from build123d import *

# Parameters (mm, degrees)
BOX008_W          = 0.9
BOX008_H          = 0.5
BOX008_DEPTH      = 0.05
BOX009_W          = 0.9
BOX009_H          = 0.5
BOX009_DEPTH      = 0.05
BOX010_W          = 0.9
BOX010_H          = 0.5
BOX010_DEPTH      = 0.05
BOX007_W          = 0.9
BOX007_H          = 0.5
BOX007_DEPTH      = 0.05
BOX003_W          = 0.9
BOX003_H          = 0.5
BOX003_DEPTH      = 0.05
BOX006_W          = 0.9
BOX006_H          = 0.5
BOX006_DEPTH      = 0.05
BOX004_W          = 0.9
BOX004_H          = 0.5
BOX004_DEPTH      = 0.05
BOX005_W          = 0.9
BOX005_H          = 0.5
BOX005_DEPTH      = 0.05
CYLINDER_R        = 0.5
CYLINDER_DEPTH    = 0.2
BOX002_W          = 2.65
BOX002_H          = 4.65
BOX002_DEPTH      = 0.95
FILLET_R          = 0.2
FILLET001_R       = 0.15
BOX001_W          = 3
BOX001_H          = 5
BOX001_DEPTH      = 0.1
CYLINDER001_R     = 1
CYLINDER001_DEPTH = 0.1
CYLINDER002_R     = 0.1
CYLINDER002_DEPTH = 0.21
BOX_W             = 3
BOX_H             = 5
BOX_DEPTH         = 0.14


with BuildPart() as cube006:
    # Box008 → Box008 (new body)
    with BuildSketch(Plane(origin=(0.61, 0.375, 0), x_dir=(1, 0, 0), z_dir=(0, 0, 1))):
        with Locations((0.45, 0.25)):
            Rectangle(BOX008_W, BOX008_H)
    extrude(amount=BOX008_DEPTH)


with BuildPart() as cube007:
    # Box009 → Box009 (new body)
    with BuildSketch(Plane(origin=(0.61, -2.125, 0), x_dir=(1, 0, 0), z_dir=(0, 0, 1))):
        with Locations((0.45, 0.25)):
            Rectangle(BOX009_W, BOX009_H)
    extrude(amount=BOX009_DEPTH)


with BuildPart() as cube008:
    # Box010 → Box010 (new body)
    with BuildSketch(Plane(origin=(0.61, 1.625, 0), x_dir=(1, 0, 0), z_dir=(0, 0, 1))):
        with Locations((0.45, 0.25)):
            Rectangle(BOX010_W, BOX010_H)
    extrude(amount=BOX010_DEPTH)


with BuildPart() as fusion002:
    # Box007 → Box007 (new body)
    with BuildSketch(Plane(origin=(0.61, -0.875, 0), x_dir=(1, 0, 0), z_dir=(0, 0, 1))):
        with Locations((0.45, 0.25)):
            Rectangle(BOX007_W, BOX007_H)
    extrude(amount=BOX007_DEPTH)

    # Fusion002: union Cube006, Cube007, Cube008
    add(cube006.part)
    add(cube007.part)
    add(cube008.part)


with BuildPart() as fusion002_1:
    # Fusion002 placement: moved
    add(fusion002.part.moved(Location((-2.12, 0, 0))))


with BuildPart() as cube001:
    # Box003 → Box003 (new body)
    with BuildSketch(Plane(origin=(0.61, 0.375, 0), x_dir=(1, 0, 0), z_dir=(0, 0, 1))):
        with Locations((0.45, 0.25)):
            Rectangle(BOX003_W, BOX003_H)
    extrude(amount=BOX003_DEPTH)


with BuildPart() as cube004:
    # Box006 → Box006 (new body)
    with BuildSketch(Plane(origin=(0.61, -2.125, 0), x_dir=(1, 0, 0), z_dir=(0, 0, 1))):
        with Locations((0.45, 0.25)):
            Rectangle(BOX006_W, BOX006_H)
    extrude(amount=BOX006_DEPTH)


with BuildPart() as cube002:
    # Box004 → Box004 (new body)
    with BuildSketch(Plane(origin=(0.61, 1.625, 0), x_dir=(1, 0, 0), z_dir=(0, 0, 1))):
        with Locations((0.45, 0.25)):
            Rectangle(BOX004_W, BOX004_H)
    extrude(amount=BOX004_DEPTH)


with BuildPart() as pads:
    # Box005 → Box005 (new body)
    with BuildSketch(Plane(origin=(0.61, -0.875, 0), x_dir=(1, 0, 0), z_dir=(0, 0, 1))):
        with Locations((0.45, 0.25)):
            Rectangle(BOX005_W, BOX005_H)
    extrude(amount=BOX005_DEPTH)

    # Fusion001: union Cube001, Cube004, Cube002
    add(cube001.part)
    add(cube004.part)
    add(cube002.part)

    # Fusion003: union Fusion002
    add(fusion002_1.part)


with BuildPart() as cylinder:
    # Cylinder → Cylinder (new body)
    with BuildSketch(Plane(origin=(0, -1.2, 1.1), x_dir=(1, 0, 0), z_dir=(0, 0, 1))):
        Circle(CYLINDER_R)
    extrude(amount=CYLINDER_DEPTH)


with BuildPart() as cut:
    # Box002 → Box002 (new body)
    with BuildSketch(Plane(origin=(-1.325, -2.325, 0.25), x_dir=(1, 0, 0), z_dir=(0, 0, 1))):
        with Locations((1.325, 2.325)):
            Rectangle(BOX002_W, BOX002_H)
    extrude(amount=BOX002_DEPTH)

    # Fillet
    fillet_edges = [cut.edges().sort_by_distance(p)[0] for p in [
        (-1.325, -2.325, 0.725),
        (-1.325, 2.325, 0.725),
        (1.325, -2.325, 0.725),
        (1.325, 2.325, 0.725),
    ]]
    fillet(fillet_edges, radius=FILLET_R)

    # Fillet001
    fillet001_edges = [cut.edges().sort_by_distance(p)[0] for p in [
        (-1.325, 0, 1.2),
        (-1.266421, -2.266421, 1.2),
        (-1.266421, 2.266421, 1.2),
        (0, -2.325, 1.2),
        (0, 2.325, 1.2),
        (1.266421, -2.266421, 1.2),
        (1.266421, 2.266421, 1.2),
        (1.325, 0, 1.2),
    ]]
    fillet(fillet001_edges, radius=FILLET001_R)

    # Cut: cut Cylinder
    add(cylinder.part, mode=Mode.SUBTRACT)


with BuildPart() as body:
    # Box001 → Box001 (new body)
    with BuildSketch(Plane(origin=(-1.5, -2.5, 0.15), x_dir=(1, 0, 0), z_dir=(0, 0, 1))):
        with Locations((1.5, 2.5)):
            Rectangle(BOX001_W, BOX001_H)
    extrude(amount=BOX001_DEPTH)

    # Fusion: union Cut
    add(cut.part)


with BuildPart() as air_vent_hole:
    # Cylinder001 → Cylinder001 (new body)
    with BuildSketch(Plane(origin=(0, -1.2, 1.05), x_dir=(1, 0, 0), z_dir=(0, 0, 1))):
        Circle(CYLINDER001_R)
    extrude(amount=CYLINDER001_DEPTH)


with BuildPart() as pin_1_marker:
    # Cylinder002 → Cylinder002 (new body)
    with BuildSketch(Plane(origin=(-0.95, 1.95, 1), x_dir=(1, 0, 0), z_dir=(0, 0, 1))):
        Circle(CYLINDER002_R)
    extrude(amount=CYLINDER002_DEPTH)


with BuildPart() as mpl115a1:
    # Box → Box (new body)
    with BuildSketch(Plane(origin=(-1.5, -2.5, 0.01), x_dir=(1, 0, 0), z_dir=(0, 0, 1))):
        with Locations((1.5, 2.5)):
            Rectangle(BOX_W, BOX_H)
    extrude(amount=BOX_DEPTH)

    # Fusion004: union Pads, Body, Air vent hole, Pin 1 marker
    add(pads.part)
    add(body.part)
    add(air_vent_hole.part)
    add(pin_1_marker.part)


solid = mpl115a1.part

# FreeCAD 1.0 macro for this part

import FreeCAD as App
import Part
import Sketcher


def edges_at(feature, points):
    """Names of the edges that pass closest to the given points."""
    edges = feature.Shape.Edges
    near = lambda p: min(range(len(edges)), key=lambda i: edges[i].distToShape(Part.Vertex(*p))[0])
    return sorted({f"Edge{near(p) + 1}" for p in points})

doc = App.newDocument("Part")
params = doc.addObject("Spreadsheet::Sheet", "Params")
for row, (alias, value) in enumerate([
    ("sketch1_width", "0.9 mm"),
    ("sketch1_height", "0.5 mm"),
    ("pad1_length", "0.05 mm"),
    ("sketch2_width", "0.9 mm"),
    ("sketch2_height", "0.5 mm"),
    ("pad2_length", "0.05 mm"),
    ("sketch3_width", "0.9 mm"),
    ("sketch3_height", "0.5 mm"),
    ("pad3_length", "0.05 mm"),
    ("sketch4_width", "0.9 mm"),
    ("sketch4_height", "0.5 mm"),
    ("pad4_length", "0.05 mm"),
    ("sketch5_width", "0.9 mm"),
    ("sketch5_height", "0.5 mm"),
    ("pad5_length", "0.05 mm"),
    ("sketch6_width", "0.9 mm"),
    ("sketch6_height", "0.5 mm"),
    ("pad6_length", "0.05 mm"),
    ("sketch7_width", "0.9 mm"),
    ("sketch7_height", "0.5 mm"),
    ("pad7_length", "0.05 mm"),
    ("sketch8_width", "0.9 mm"),
    ("sketch8_height", "0.5 mm"),
    ("pad8_length", "0.05 mm"),
    ("sketch9_diameter", "1 mm"),
    ("pad9_length", "0.2 mm"),
    ("sketch10_width", "2.65 mm"),
    ("sketch10_height", "4.65 mm"),
    ("pad10_length", "0.95 mm"),
    ("fillet_radius", "0.2 mm"),
    ("fillet2_radius", "0.15 mm"),
    ("sketch11_width", "3 mm"),
    ("sketch11_height", "5 mm"),
    ("pad11_length", "0.1 mm"),
    ("sketch12_diameter", "2 mm"),
    ("pad12_length", "0.1 mm"),
    ("sketch13_diameter", "0.2 mm"),
    ("pad13_length", "0.21 mm"),
    ("sketch14_width", "3 mm"),
    ("sketch14_height", "5 mm"),
    ("pad14_length", "0.14 mm"),
], start=1):
    params.set(f"A{row}", alias)
    params.set(f"B{row}", "=" + value)
    params.setAlias(f"B{row}", alias)

body = doc.addObject("PartDesign::Body", "Body")

# Sketch on XY plane
sketch1 = body.newObject("Sketcher::SketchObject", "Sketch")
sketch1.AttachmentSupport = (doc.getObject("XY_Plane"), [""])
sketch1.MapMode = "FlatFace"
sketch1.addGeometry(Part.LineSegment(App.Vector(0.6, 0.9, 0), App.Vector(0.6, 0.4, 0)), False)
sketch1.addGeometry(Part.LineSegment(App.Vector(0.6, 0.4, 0), App.Vector(1.5, 0.4, 0)), False)
sketch1.addGeometry(Part.LineSegment(App.Vector(1.5, 0.4, 0), App.Vector(1.5, 0.9, 0)), False)
sketch1.addGeometry(Part.LineSegment(App.Vector(1.5, 0.9, 0), App.Vector(0.6, 0.9, 0)), False)
sketch1.addConstraint(Sketcher.Constraint("Coincident", 0, 2, 1, 1))
sketch1.addConstraint(Sketcher.Constraint("Coincident", 1, 2, 2, 1))
sketch1.addConstraint(Sketcher.Constraint("Coincident", 2, 2, 3, 1))
sketch1.addConstraint(Sketcher.Constraint("Coincident", 3, 2, 0, 1))
sketch1.addConstraint(Sketcher.Constraint("Vertical", 0))
sketch1.addConstraint(Sketcher.Constraint("Horizontal", 1))
sketch1.addConstraint(Sketcher.Constraint("Vertical", 2))
sketch1.addConstraint(Sketcher.Constraint("Horizontal", 3))
sketch1.addConstraint(Sketcher.Constraint("DistanceX", 1, 1, 1, 2, 0.9))
sketch1.addConstraint(Sketcher.Constraint("DistanceY", 0, 2, 0, 1, 0.5))
sketch1.addConstraint(Sketcher.Constraint("DistanceX", -1, 1, 0, 2, 0.61))
sketch1.addConstraint(Sketcher.Constraint("DistanceY", -1, 1, 0, 2, 0.375))
sketch1.setExpression("Constraints[8]", "Params.sketch1_width")
sketch1.setExpression("Constraints[9]", "Params.sketch1_height")
pad1 = body.newObject("PartDesign::Pad", "Pad")
pad1.Profile = sketch1
pad1.setExpression("Length", "Params.pad1_length")
body2 = doc.addObject("PartDesign::Body", "Body001")

# Sketch on XY plane
sketch2 = body2.newObject("Sketcher::SketchObject", "Sketch001")
sketch2.AttachmentSupport = (doc.getObject("XY_Plane001"), [""])
sketch2.MapMode = "FlatFace"
sketch2.addGeometry(Part.LineSegment(App.Vector(0.6, -1.6, 0), App.Vector(0.6, -2.1, 0)), False)
sketch2.addGeometry(Part.LineSegment(App.Vector(0.6, -2.1, 0), App.Vector(1.5, -2.1, 0)), False)
sketch2.addGeometry(Part.LineSegment(App.Vector(1.5, -2.1, 0), App.Vector(1.5, -1.6, 0)), False)
sketch2.addGeometry(Part.LineSegment(App.Vector(1.5, -1.6, 0), App.Vector(0.6, -1.6, 0)), False)
sketch2.addConstraint(Sketcher.Constraint("Coincident", 0, 2, 1, 1))
sketch2.addConstraint(Sketcher.Constraint("Coincident", 1, 2, 2, 1))
sketch2.addConstraint(Sketcher.Constraint("Coincident", 2, 2, 3, 1))
sketch2.addConstraint(Sketcher.Constraint("Coincident", 3, 2, 0, 1))
sketch2.addConstraint(Sketcher.Constraint("Vertical", 0))
sketch2.addConstraint(Sketcher.Constraint("Horizontal", 1))
sketch2.addConstraint(Sketcher.Constraint("Vertical", 2))
sketch2.addConstraint(Sketcher.Constraint("Horizontal", 3))
sketch2.addConstraint(Sketcher.Constraint("DistanceX", 1, 1, 1, 2, 0.9))
sketch2.addConstraint(Sketcher.Constraint("DistanceY", 0, 2, 0, 1, 0.5))
sketch2.addConstraint(Sketcher.Constraint("DistanceX", -1, 1, 0, 2, 0.61))
sketch2.addConstraint(Sketcher.Constraint("DistanceY", 0, 2, -1, 1, 2.125))
sketch2.setExpression("Constraints[8]", "Params.sketch2_width")
sketch2.setExpression("Constraints[9]", "Params.sketch2_height")
pad2 = body2.newObject("PartDesign::Pad", "Pad001")
pad2.Profile = sketch2
pad2.setExpression("Length", "Params.pad2_length")
body3 = doc.addObject("PartDesign::Body", "Body002")

# Sketch on XY plane
sketch3 = body3.newObject("Sketcher::SketchObject", "Sketch002")
sketch3.AttachmentSupport = (doc.getObject("XY_Plane002"), [""])
sketch3.MapMode = "FlatFace"
sketch3.addGeometry(Part.LineSegment(App.Vector(0.6, 2.1, 0), App.Vector(0.6, 1.6, 0)), False)
sketch3.addGeometry(Part.LineSegment(App.Vector(0.6, 1.6, 0), App.Vector(1.5, 1.6, 0)), False)
sketch3.addGeometry(Part.LineSegment(App.Vector(1.5, 1.6, 0), App.Vector(1.5, 2.1, 0)), False)
sketch3.addGeometry(Part.LineSegment(App.Vector(1.5, 2.1, 0), App.Vector(0.6, 2.1, 0)), False)
sketch3.addConstraint(Sketcher.Constraint("Coincident", 0, 2, 1, 1))
sketch3.addConstraint(Sketcher.Constraint("Coincident", 1, 2, 2, 1))
sketch3.addConstraint(Sketcher.Constraint("Coincident", 2, 2, 3, 1))
sketch3.addConstraint(Sketcher.Constraint("Coincident", 3, 2, 0, 1))
sketch3.addConstraint(Sketcher.Constraint("Vertical", 0))
sketch3.addConstraint(Sketcher.Constraint("Horizontal", 1))
sketch3.addConstraint(Sketcher.Constraint("Vertical", 2))
sketch3.addConstraint(Sketcher.Constraint("Horizontal", 3))
sketch3.addConstraint(Sketcher.Constraint("DistanceX", 1, 1, 1, 2, 0.9))
sketch3.addConstraint(Sketcher.Constraint("DistanceY", 0, 2, 0, 1, 0.5))
sketch3.addConstraint(Sketcher.Constraint("DistanceX", -1, 1, 0, 2, 0.61))
sketch3.addConstraint(Sketcher.Constraint("DistanceY", -1, 1, 0, 2, 1.625))
sketch3.setExpression("Constraints[8]", "Params.sketch3_width")
sketch3.setExpression("Constraints[9]", "Params.sketch3_height")
pad3 = body3.newObject("PartDesign::Pad", "Pad002")
pad3.Profile = sketch3
pad3.setExpression("Length", "Params.pad3_length")
body4 = doc.addObject("PartDesign::Body", "Body003")
body4.AllowCompound = True

# Sketch on XY plane
sketch4 = body4.newObject("Sketcher::SketchObject", "Sketch003")
sketch4.AttachmentSupport = (doc.getObject("XY_Plane003"), [""])
sketch4.MapMode = "FlatFace"
sketch4.addGeometry(Part.LineSegment(App.Vector(0.6, -0.4, 0), App.Vector(0.6, -0.9, 0)), False)
sketch4.addGeometry(Part.LineSegment(App.Vector(0.6, -0.9, 0), App.Vector(1.5, -0.9, 0)), False)
sketch4.addGeometry(Part.LineSegment(App.Vector(1.5, -0.9, 0), App.Vector(1.5, -0.4, 0)), False)
sketch4.addGeometry(Part.LineSegment(App.Vector(1.5, -0.4, 0), App.Vector(0.6, -0.4, 0)), False)
sketch4.addConstraint(Sketcher.Constraint("Coincident", 0, 2, 1, 1))
sketch4.addConstraint(Sketcher.Constraint("Coincident", 1, 2, 2, 1))
sketch4.addConstraint(Sketcher.Constraint("Coincident", 2, 2, 3, 1))
sketch4.addConstraint(Sketcher.Constraint("Coincident", 3, 2, 0, 1))
sketch4.addConstraint(Sketcher.Constraint("Vertical", 0))
sketch4.addConstraint(Sketcher.Constraint("Horizontal", 1))
sketch4.addConstraint(Sketcher.Constraint("Vertical", 2))
sketch4.addConstraint(Sketcher.Constraint("Horizontal", 3))
sketch4.addConstraint(Sketcher.Constraint("DistanceX", 1, 1, 1, 2, 0.9))
sketch4.addConstraint(Sketcher.Constraint("DistanceY", 0, 2, 0, 1, 0.5))
sketch4.addConstraint(Sketcher.Constraint("DistanceX", -1, 1, 0, 2, 0.61))
sketch4.addConstraint(Sketcher.Constraint("DistanceY", 0, 2, -1, 1, 0.875))
sketch4.setExpression("Constraints[8]", "Params.sketch4_width")
sketch4.setExpression("Constraints[9]", "Params.sketch4_height")
pad4 = body4.newObject("PartDesign::Pad", "Pad003")
pad4.Profile = sketch4
pad4.setExpression("Length", "Params.pad4_length")
doc.recompute()

boolean = body4.newObject("PartDesign::Boolean", "Boolean")
boolean.Type = "Fuse"
boolean.addObjects([body])
doc.recompute()

boolean2 = body4.newObject("PartDesign::Boolean", "Boolean001")
boolean2.Type = "Fuse"
boolean2.addObjects([body2])
doc.recompute()

boolean3 = body4.newObject("PartDesign::Boolean", "Boolean002")
boolean3.Type = "Fuse"
boolean3.addObjects([body3])
body5 = doc.addObject("PartDesign::Body", "Body004")
body5.AllowCompound = True
doc.recompute()

body4.Placement = App.Placement(App.Vector(-2.12, 0, 0), App.Rotation(App.Vector(0, 0, 1), 0))
boolean4 = body5.newObject("PartDesign::Boolean", "Boolean003")
boolean4.Type = "Fuse"
boolean4.addObjects([body4])
body6 = doc.addObject("PartDesign::Body", "Body005")

# Sketch on XY plane
sketch5 = body6.newObject("Sketcher::SketchObject", "Sketch004")
sketch5.AttachmentSupport = (doc.getObject("XY_Plane005"), [""])
sketch5.MapMode = "FlatFace"
sketch5.addGeometry(Part.LineSegment(App.Vector(0.6, 0.9, 0), App.Vector(0.6, 0.4, 0)), False)
sketch5.addGeometry(Part.LineSegment(App.Vector(0.6, 0.4, 0), App.Vector(1.5, 0.4, 0)), False)
sketch5.addGeometry(Part.LineSegment(App.Vector(1.5, 0.4, 0), App.Vector(1.5, 0.9, 0)), False)
sketch5.addGeometry(Part.LineSegment(App.Vector(1.5, 0.9, 0), App.Vector(0.6, 0.9, 0)), False)
sketch5.addConstraint(Sketcher.Constraint("Coincident", 0, 2, 1, 1))
sketch5.addConstraint(Sketcher.Constraint("Coincident", 1, 2, 2, 1))
sketch5.addConstraint(Sketcher.Constraint("Coincident", 2, 2, 3, 1))
sketch5.addConstraint(Sketcher.Constraint("Coincident", 3, 2, 0, 1))
sketch5.addConstraint(Sketcher.Constraint("Vertical", 0))
sketch5.addConstraint(Sketcher.Constraint("Horizontal", 1))
sketch5.addConstraint(Sketcher.Constraint("Vertical", 2))
sketch5.addConstraint(Sketcher.Constraint("Horizontal", 3))
sketch5.addConstraint(Sketcher.Constraint("DistanceX", 1, 1, 1, 2, 0.9))
sketch5.addConstraint(Sketcher.Constraint("DistanceY", 0, 2, 0, 1, 0.5))
sketch5.addConstraint(Sketcher.Constraint("DistanceX", -1, 1, 0, 2, 0.61))
sketch5.addConstraint(Sketcher.Constraint("DistanceY", -1, 1, 0, 2, 0.375))
sketch5.setExpression("Constraints[8]", "Params.sketch5_width")
sketch5.setExpression("Constraints[9]", "Params.sketch5_height")
pad5 = body6.newObject("PartDesign::Pad", "Pad004")
pad5.Profile = sketch5
pad5.setExpression("Length", "Params.pad5_length")
body7 = doc.addObject("PartDesign::Body", "Body006")

# Sketch on XY plane
sketch6 = body7.newObject("Sketcher::SketchObject", "Sketch005")
sketch6.AttachmentSupport = (doc.getObject("XY_Plane006"), [""])
sketch6.MapMode = "FlatFace"
sketch6.addGeometry(Part.LineSegment(App.Vector(0.6, -1.6, 0), App.Vector(0.6, -2.1, 0)), False)
sketch6.addGeometry(Part.LineSegment(App.Vector(0.6, -2.1, 0), App.Vector(1.5, -2.1, 0)), False)
sketch6.addGeometry(Part.LineSegment(App.Vector(1.5, -2.1, 0), App.Vector(1.5, -1.6, 0)), False)
sketch6.addGeometry(Part.LineSegment(App.Vector(1.5, -1.6, 0), App.Vector(0.6, -1.6, 0)), False)
sketch6.addConstraint(Sketcher.Constraint("Coincident", 0, 2, 1, 1))
sketch6.addConstraint(Sketcher.Constraint("Coincident", 1, 2, 2, 1))
sketch6.addConstraint(Sketcher.Constraint("Coincident", 2, 2, 3, 1))
sketch6.addConstraint(Sketcher.Constraint("Coincident", 3, 2, 0, 1))
sketch6.addConstraint(Sketcher.Constraint("Vertical", 0))
sketch6.addConstraint(Sketcher.Constraint("Horizontal", 1))
sketch6.addConstraint(Sketcher.Constraint("Vertical", 2))
sketch6.addConstraint(Sketcher.Constraint("Horizontal", 3))
sketch6.addConstraint(Sketcher.Constraint("DistanceX", 1, 1, 1, 2, 0.9))
sketch6.addConstraint(Sketcher.Constraint("DistanceY", 0, 2, 0, 1, 0.5))
sketch6.addConstraint(Sketcher.Constraint("DistanceX", -1, 1, 0, 2, 0.61))
sketch6.addConstraint(Sketcher.Constraint("DistanceY", 0, 2, -1, 1, 2.125))
sketch6.setExpression("Constraints[8]", "Params.sketch6_width")
sketch6.setExpression("Constraints[9]", "Params.sketch6_height")
pad6 = body7.newObject("PartDesign::Pad", "Pad005")
pad6.Profile = sketch6
pad6.setExpression("Length", "Params.pad6_length")
body8 = doc.addObject("PartDesign::Body", "Body007")

# Sketch on XY plane
sketch7 = body8.newObject("Sketcher::SketchObject", "Sketch006")
sketch7.AttachmentSupport = (doc.getObject("XY_Plane007"), [""])
sketch7.MapMode = "FlatFace"
sketch7.addGeometry(Part.LineSegment(App.Vector(0.6, 2.1, 0), App.Vector(0.6, 1.6, 0)), False)
sketch7.addGeometry(Part.LineSegment(App.Vector(0.6, 1.6, 0), App.Vector(1.5, 1.6, 0)), False)
sketch7.addGeometry(Part.LineSegment(App.Vector(1.5, 1.6, 0), App.Vector(1.5, 2.1, 0)), False)
sketch7.addGeometry(Part.LineSegment(App.Vector(1.5, 2.1, 0), App.Vector(0.6, 2.1, 0)), False)
sketch7.addConstraint(Sketcher.Constraint("Coincident", 0, 2, 1, 1))
sketch7.addConstraint(Sketcher.Constraint("Coincident", 1, 2, 2, 1))
sketch7.addConstraint(Sketcher.Constraint("Coincident", 2, 2, 3, 1))
sketch7.addConstraint(Sketcher.Constraint("Coincident", 3, 2, 0, 1))
sketch7.addConstraint(Sketcher.Constraint("Vertical", 0))
sketch7.addConstraint(Sketcher.Constraint("Horizontal", 1))
sketch7.addConstraint(Sketcher.Constraint("Vertical", 2))
sketch7.addConstraint(Sketcher.Constraint("Horizontal", 3))
sketch7.addConstraint(Sketcher.Constraint("DistanceX", 1, 1, 1, 2, 0.9))
sketch7.addConstraint(Sketcher.Constraint("DistanceY", 0, 2, 0, 1, 0.5))
sketch7.addConstraint(Sketcher.Constraint("DistanceX", -1, 1, 0, 2, 0.61))
sketch7.addConstraint(Sketcher.Constraint("DistanceY", -1, 1, 0, 2, 1.625))
sketch7.setExpression("Constraints[8]", "Params.sketch7_width")
sketch7.setExpression("Constraints[9]", "Params.sketch7_height")
pad7 = body8.newObject("PartDesign::Pad", "Pad006")
pad7.Profile = sketch7
pad7.setExpression("Length", "Params.pad7_length")
body9 = doc.addObject("PartDesign::Body", "Body008")
body9.AllowCompound = True

# Sketch on XY plane
sketch8 = body9.newObject("Sketcher::SketchObject", "Sketch007")
sketch8.AttachmentSupport = (doc.getObject("XY_Plane008"), [""])
sketch8.MapMode = "FlatFace"
sketch8.addGeometry(Part.LineSegment(App.Vector(0.6, -0.4, 0), App.Vector(0.6, -0.9, 0)), False)
sketch8.addGeometry(Part.LineSegment(App.Vector(0.6, -0.9, 0), App.Vector(1.5, -0.9, 0)), False)
sketch8.addGeometry(Part.LineSegment(App.Vector(1.5, -0.9, 0), App.Vector(1.5, -0.4, 0)), False)
sketch8.addGeometry(Part.LineSegment(App.Vector(1.5, -0.4, 0), App.Vector(0.6, -0.4, 0)), False)
sketch8.addConstraint(Sketcher.Constraint("Coincident", 0, 2, 1, 1))
sketch8.addConstraint(Sketcher.Constraint("Coincident", 1, 2, 2, 1))
sketch8.addConstraint(Sketcher.Constraint("Coincident", 2, 2, 3, 1))
sketch8.addConstraint(Sketcher.Constraint("Coincident", 3, 2, 0, 1))
sketch8.addConstraint(Sketcher.Constraint("Vertical", 0))
sketch8.addConstraint(Sketcher.Constraint("Horizontal", 1))
sketch8.addConstraint(Sketcher.Constraint("Vertical", 2))
sketch8.addConstraint(Sketcher.Constraint("Horizontal", 3))
sketch8.addConstraint(Sketcher.Constraint("DistanceX", 1, 1, 1, 2, 0.9))
sketch8.addConstraint(Sketcher.Constraint("DistanceY", 0, 2, 0, 1, 0.5))
sketch8.addConstraint(Sketcher.Constraint("DistanceX", -1, 1, 0, 2, 0.61))
sketch8.addConstraint(Sketcher.Constraint("DistanceY", 0, 2, -1, 1, 0.875))
sketch8.setExpression("Constraints[8]", "Params.sketch8_width")
sketch8.setExpression("Constraints[9]", "Params.sketch8_height")
pad8 = body9.newObject("PartDesign::Pad", "Pad007")
pad8.Profile = sketch8
pad8.setExpression("Length", "Params.pad8_length")
doc.recompute()

boolean5 = body9.newObject("PartDesign::Boolean", "Boolean004")
boolean5.Type = "Fuse"
boolean5.addObjects([body6])
doc.recompute()

boolean6 = body9.newObject("PartDesign::Boolean", "Boolean005")
boolean6.Type = "Fuse"
boolean6.addObjects([body7])
doc.recompute()

boolean7 = body9.newObject("PartDesign::Boolean", "Boolean006")
boolean7.Type = "Fuse"
boolean7.addObjects([body8])
doc.recompute()

boolean8 = body9.newObject("PartDesign::Boolean", "Boolean007")
boolean8.Type = "Fuse"
boolean8.addObjects([body5])
body10 = doc.addObject("PartDesign::Body", "Body009")

# Sketch on XY plane
sketch9 = body10.newObject("Sketcher::SketchObject", "Sketch008")
sketch9.AttachmentSupport = (doc.getObject("XY_Plane009"), [""])
sketch9.MapMode = "FlatFace"
sketch9.AttachmentOffset = App.Placement(App.Vector(0, 0, 1.1), App.Rotation())
sketch9.addGeometry(Part.Circle(App.Vector(0, -1.2, 0), App.Vector(0, 0, 1), 0.5), False)
sketch9.addConstraint(Sketcher.Constraint("PointOnObject", 0, 3, -2))
sketch9.addConstraint(Sketcher.Constraint("Diameter", 0, 1.0))
sketch9.addConstraint(Sketcher.Constraint("DistanceY", 0, 3, -1, 1, 1.2))
sketch9.setExpression("Constraints[1]", "Params.sketch9_diameter")
pad9 = body10.newObject("PartDesign::Pad", "Pad008")
pad9.Profile = sketch9
pad9.setExpression("Length", "Params.pad9_length")
body11 = doc.addObject("PartDesign::Body", "Body010")

# Sketch on XY plane
sketch10 = body11.newObject("Sketcher::SketchObject", "Sketch009")
sketch10.AttachmentSupport = (doc.getObject("XY_Plane010"), [""])
sketch10.MapMode = "FlatFace"
sketch10.AttachmentOffset = App.Placement(App.Vector(0, 0, 0.25), App.Rotation())
sketch10.addGeometry(Part.LineSegment(App.Vector(-1.3, 2.3, 0), App.Vector(-1.3, -2.3, 0)), False)
sketch10.addGeometry(Part.LineSegment(App.Vector(-1.3, -2.3, 0), App.Vector(1.3, -2.3, 0)), False)
sketch10.addGeometry(Part.LineSegment(App.Vector(1.3, -2.3, 0), App.Vector(1.3, 2.3, 0)), False)
sketch10.addGeometry(Part.LineSegment(App.Vector(1.3, 2.3, 0), App.Vector(-1.3, 2.3, 0)), False)
sketch10.addConstraint(Sketcher.Constraint("Coincident", 0, 2, 1, 1))
sketch10.addConstraint(Sketcher.Constraint("Coincident", 1, 2, 2, 1))
sketch10.addConstraint(Sketcher.Constraint("Coincident", 2, 2, 3, 1))
sketch10.addConstraint(Sketcher.Constraint("Coincident", 3, 2, 0, 1))
sketch10.addConstraint(Sketcher.Constraint("Vertical", 0))
sketch10.addConstraint(Sketcher.Constraint("Horizontal", 1))
sketch10.addConstraint(Sketcher.Constraint("Vertical", 2))
sketch10.addConstraint(Sketcher.Constraint("Horizontal", 3))
sketch10.addConstraint(Sketcher.Constraint("Symmetric", 0, 2, 2, 2, -1, 1))
sketch10.addConstraint(Sketcher.Constraint("DistanceX", 1, 1, 1, 2, 2.65))
sketch10.addConstraint(Sketcher.Constraint("DistanceY", 0, 2, 0, 1, 4.65))
sketch10.setExpression("Constraints[9]", "Params.sketch10_width")
sketch10.setExpression("Constraints[10]", "Params.sketch10_height")
pad10 = body11.newObject("PartDesign::Pad", "Pad009")
pad10.Profile = sketch10
pad10.setExpression("Length", "Params.pad10_length")
doc.recompute()

fillet = body11.newObject("PartDesign::Fillet", "Fillet")
fillet.Base = (pad10, edges_at(pad10, [
    (-1.325, -2.325, 0.725),
    (-1.325, 2.325, 0.725),
    (1.325, -2.325, 0.725),
    (1.325, 2.325, 0.725),
]))
fillet.setExpression("Radius", "Params.fillet_radius")
doc.recompute()

fillet2 = body11.newObject("PartDesign::Fillet", "Fillet001")
fillet2.Base = (fillet, edges_at(fillet, [
    (-1.325, 0, 1.2),
    (-1.266, -2.266, 1.2),
    (-1.266, 2.266, 1.2),
    (0, -2.325, 1.2),
    (0, 2.325, 1.2),
    (1.266, -2.266, 1.2),
    (1.266, 2.266, 1.2),
    (1.325, 0, 1.2),
]))
fillet2.setExpression("Radius", "Params.fillet2_radius")
doc.recompute()

boolean9 = body11.newObject("PartDesign::Boolean", "Boolean008")
boolean9.Type = "Cut"
boolean9.addObjects([body10])
body12 = doc.addObject("PartDesign::Body", "Body011")

# Sketch on XY plane
sketch11 = body12.newObject("Sketcher::SketchObject", "Sketch010")
sketch11.AttachmentSupport = (doc.getObject("XY_Plane011"), [""])
sketch11.MapMode = "FlatFace"
sketch11.AttachmentOffset = App.Placement(App.Vector(0, 0, 0.15), App.Rotation())
sketch11.addGeometry(Part.LineSegment(App.Vector(-1.5, 2.5, 0), App.Vector(-1.5, -2.5, 0)), False)
sketch11.addGeometry(Part.LineSegment(App.Vector(-1.5, -2.5, 0), App.Vector(1.5, -2.5, 0)), False)
sketch11.addGeometry(Part.LineSegment(App.Vector(1.5, -2.5, 0), App.Vector(1.5, 2.5, 0)), False)
sketch11.addGeometry(Part.LineSegment(App.Vector(1.5, 2.5, 0), App.Vector(-1.5, 2.5, 0)), False)
sketch11.addConstraint(Sketcher.Constraint("Coincident", 0, 2, 1, 1))
sketch11.addConstraint(Sketcher.Constraint("Coincident", 1, 2, 2, 1))
sketch11.addConstraint(Sketcher.Constraint("Coincident", 2, 2, 3, 1))
sketch11.addConstraint(Sketcher.Constraint("Coincident", 3, 2, 0, 1))
sketch11.addConstraint(Sketcher.Constraint("Vertical", 0))
sketch11.addConstraint(Sketcher.Constraint("Horizontal", 1))
sketch11.addConstraint(Sketcher.Constraint("Vertical", 2))
sketch11.addConstraint(Sketcher.Constraint("Horizontal", 3))
sketch11.addConstraint(Sketcher.Constraint("Symmetric", 0, 2, 2, 2, -1, 1))
sketch11.addConstraint(Sketcher.Constraint("DistanceX", 1, 1, 1, 2, 3.0))
sketch11.addConstraint(Sketcher.Constraint("DistanceY", 0, 2, 0, 1, 5.0))
sketch11.setExpression("Constraints[9]", "Params.sketch11_width")
sketch11.setExpression("Constraints[10]", "Params.sketch11_height")
pad11 = body12.newObject("PartDesign::Pad", "Pad010")
pad11.Profile = sketch11
pad11.setExpression("Length", "Params.pad11_length")
doc.recompute()

boolean10 = body12.newObject("PartDesign::Boolean", "Boolean009")
boolean10.Type = "Fuse"
boolean10.addObjects([body11])
body13 = doc.addObject("PartDesign::Body", "Body012")

# Sketch on XY plane
sketch12 = body13.newObject("Sketcher::SketchObject", "Sketch011")
sketch12.AttachmentSupport = (doc.getObject("XY_Plane012"), [""])
sketch12.MapMode = "FlatFace"
sketch12.AttachmentOffset = App.Placement(App.Vector(0, 0, 1.05), App.Rotation())
sketch12.addGeometry(Part.Circle(App.Vector(0, -1.2, 0), App.Vector(0, 0, 1), 1), False)
sketch12.addConstraint(Sketcher.Constraint("PointOnObject", 0, 3, -2))
sketch12.addConstraint(Sketcher.Constraint("Diameter", 0, 2.0))
sketch12.addConstraint(Sketcher.Constraint("DistanceY", 0, 3, -1, 1, 1.2))
sketch12.setExpression("Constraints[1]", "Params.sketch12_diameter")
pad12 = body13.newObject("PartDesign::Pad", "Pad011")
pad12.Profile = sketch12
pad12.setExpression("Length", "Params.pad12_length")
body14 = doc.addObject("PartDesign::Body", "Body013")

# Sketch on XY plane
sketch13 = body14.newObject("Sketcher::SketchObject", "Sketch012")
sketch13.AttachmentSupport = (doc.getObject("XY_Plane013"), [""])
sketch13.MapMode = "FlatFace"
sketch13.AttachmentOffset = App.Placement(App.Vector(0, 0, 1), App.Rotation())
sketch13.addGeometry(Part.Circle(App.Vector(-0.95, 1.95, 0), App.Vector(0, 0, 1), 0.1), False)
sketch13.addConstraint(Sketcher.Constraint("Diameter", 0, 0.2))
sketch13.addConstraint(Sketcher.Constraint("DistanceX", 0, 3, -1, 1, 0.95))
sketch13.addConstraint(Sketcher.Constraint("DistanceY", -1, 1, 0, 3, 1.95))
sketch13.setExpression("Constraints[0]", "Params.sketch13_diameter")
pad13 = body14.newObject("PartDesign::Pad", "Pad012")
pad13.Profile = sketch13
pad13.setExpression("Length", "Params.pad13_length")
body15 = doc.addObject("PartDesign::Body", "Body014")

# Sketch on XY plane
sketch14 = body15.newObject("Sketcher::SketchObject", "Sketch013")
sketch14.AttachmentSupport = (doc.getObject("XY_Plane014"), [""])
sketch14.MapMode = "FlatFace"
sketch14.AttachmentOffset = App.Placement(App.Vector(0, 0, 0.01), App.Rotation())
sketch14.addGeometry(Part.LineSegment(App.Vector(-1.5, 2.5, 0), App.Vector(-1.5, -2.5, 0)), False)
sketch14.addGeometry(Part.LineSegment(App.Vector(-1.5, -2.5, 0), App.Vector(1.5, -2.5, 0)), False)
sketch14.addGeometry(Part.LineSegment(App.Vector(1.5, -2.5, 0), App.Vector(1.5, 2.5, 0)), False)
sketch14.addGeometry(Part.LineSegment(App.Vector(1.5, 2.5, 0), App.Vector(-1.5, 2.5, 0)), False)
sketch14.addConstraint(Sketcher.Constraint("Coincident", 0, 2, 1, 1))
sketch14.addConstraint(Sketcher.Constraint("Coincident", 1, 2, 2, 1))
sketch14.addConstraint(Sketcher.Constraint("Coincident", 2, 2, 3, 1))
sketch14.addConstraint(Sketcher.Constraint("Coincident", 3, 2, 0, 1))
sketch14.addConstraint(Sketcher.Constraint("Vertical", 0))
sketch14.addConstraint(Sketcher.Constraint("Horizontal", 1))
sketch14.addConstraint(Sketcher.Constraint("Vertical", 2))
sketch14.addConstraint(Sketcher.Constraint("Horizontal", 3))
sketch14.addConstraint(Sketcher.Constraint("Symmetric", 0, 2, 2, 2, -1, 1))
sketch14.addConstraint(Sketcher.Constraint("DistanceX", 1, 1, 1, 2, 3.0))
sketch14.addConstraint(Sketcher.Constraint("DistanceY", 0, 2, 0, 1, 5.0))
sketch14.setExpression("Constraints[9]", "Params.sketch14_width")
sketch14.setExpression("Constraints[10]", "Params.sketch14_height")
pad14 = body15.newObject("PartDesign::Pad", "Pad013")
pad14.Profile = sketch14
pad14.setExpression("Length", "Params.pad14_length")
doc.recompute()

boolean11 = body15.newObject("PartDesign::Boolean", "Boolean010")
boolean11.Type = "Fuse"
boolean11.addObjects([body9])
doc.recompute()

boolean12 = body15.newObject("PartDesign::Boolean", "Boolean011")
boolean12.Type = "Fuse"
boolean12.addObjects([body12])
doc.recompute()

boolean13 = body15.newObject("PartDesign::Boolean", "Boolean012")
boolean13.Type = "Fuse"
boolean13.addObjects([body13])
doc.recompute()

boolean14 = body15.newObject("PartDesign::Boolean", "Boolean013")
boolean14.Type = "Fuse"
boolean14.addObjects([body14])

doc.recompute()
